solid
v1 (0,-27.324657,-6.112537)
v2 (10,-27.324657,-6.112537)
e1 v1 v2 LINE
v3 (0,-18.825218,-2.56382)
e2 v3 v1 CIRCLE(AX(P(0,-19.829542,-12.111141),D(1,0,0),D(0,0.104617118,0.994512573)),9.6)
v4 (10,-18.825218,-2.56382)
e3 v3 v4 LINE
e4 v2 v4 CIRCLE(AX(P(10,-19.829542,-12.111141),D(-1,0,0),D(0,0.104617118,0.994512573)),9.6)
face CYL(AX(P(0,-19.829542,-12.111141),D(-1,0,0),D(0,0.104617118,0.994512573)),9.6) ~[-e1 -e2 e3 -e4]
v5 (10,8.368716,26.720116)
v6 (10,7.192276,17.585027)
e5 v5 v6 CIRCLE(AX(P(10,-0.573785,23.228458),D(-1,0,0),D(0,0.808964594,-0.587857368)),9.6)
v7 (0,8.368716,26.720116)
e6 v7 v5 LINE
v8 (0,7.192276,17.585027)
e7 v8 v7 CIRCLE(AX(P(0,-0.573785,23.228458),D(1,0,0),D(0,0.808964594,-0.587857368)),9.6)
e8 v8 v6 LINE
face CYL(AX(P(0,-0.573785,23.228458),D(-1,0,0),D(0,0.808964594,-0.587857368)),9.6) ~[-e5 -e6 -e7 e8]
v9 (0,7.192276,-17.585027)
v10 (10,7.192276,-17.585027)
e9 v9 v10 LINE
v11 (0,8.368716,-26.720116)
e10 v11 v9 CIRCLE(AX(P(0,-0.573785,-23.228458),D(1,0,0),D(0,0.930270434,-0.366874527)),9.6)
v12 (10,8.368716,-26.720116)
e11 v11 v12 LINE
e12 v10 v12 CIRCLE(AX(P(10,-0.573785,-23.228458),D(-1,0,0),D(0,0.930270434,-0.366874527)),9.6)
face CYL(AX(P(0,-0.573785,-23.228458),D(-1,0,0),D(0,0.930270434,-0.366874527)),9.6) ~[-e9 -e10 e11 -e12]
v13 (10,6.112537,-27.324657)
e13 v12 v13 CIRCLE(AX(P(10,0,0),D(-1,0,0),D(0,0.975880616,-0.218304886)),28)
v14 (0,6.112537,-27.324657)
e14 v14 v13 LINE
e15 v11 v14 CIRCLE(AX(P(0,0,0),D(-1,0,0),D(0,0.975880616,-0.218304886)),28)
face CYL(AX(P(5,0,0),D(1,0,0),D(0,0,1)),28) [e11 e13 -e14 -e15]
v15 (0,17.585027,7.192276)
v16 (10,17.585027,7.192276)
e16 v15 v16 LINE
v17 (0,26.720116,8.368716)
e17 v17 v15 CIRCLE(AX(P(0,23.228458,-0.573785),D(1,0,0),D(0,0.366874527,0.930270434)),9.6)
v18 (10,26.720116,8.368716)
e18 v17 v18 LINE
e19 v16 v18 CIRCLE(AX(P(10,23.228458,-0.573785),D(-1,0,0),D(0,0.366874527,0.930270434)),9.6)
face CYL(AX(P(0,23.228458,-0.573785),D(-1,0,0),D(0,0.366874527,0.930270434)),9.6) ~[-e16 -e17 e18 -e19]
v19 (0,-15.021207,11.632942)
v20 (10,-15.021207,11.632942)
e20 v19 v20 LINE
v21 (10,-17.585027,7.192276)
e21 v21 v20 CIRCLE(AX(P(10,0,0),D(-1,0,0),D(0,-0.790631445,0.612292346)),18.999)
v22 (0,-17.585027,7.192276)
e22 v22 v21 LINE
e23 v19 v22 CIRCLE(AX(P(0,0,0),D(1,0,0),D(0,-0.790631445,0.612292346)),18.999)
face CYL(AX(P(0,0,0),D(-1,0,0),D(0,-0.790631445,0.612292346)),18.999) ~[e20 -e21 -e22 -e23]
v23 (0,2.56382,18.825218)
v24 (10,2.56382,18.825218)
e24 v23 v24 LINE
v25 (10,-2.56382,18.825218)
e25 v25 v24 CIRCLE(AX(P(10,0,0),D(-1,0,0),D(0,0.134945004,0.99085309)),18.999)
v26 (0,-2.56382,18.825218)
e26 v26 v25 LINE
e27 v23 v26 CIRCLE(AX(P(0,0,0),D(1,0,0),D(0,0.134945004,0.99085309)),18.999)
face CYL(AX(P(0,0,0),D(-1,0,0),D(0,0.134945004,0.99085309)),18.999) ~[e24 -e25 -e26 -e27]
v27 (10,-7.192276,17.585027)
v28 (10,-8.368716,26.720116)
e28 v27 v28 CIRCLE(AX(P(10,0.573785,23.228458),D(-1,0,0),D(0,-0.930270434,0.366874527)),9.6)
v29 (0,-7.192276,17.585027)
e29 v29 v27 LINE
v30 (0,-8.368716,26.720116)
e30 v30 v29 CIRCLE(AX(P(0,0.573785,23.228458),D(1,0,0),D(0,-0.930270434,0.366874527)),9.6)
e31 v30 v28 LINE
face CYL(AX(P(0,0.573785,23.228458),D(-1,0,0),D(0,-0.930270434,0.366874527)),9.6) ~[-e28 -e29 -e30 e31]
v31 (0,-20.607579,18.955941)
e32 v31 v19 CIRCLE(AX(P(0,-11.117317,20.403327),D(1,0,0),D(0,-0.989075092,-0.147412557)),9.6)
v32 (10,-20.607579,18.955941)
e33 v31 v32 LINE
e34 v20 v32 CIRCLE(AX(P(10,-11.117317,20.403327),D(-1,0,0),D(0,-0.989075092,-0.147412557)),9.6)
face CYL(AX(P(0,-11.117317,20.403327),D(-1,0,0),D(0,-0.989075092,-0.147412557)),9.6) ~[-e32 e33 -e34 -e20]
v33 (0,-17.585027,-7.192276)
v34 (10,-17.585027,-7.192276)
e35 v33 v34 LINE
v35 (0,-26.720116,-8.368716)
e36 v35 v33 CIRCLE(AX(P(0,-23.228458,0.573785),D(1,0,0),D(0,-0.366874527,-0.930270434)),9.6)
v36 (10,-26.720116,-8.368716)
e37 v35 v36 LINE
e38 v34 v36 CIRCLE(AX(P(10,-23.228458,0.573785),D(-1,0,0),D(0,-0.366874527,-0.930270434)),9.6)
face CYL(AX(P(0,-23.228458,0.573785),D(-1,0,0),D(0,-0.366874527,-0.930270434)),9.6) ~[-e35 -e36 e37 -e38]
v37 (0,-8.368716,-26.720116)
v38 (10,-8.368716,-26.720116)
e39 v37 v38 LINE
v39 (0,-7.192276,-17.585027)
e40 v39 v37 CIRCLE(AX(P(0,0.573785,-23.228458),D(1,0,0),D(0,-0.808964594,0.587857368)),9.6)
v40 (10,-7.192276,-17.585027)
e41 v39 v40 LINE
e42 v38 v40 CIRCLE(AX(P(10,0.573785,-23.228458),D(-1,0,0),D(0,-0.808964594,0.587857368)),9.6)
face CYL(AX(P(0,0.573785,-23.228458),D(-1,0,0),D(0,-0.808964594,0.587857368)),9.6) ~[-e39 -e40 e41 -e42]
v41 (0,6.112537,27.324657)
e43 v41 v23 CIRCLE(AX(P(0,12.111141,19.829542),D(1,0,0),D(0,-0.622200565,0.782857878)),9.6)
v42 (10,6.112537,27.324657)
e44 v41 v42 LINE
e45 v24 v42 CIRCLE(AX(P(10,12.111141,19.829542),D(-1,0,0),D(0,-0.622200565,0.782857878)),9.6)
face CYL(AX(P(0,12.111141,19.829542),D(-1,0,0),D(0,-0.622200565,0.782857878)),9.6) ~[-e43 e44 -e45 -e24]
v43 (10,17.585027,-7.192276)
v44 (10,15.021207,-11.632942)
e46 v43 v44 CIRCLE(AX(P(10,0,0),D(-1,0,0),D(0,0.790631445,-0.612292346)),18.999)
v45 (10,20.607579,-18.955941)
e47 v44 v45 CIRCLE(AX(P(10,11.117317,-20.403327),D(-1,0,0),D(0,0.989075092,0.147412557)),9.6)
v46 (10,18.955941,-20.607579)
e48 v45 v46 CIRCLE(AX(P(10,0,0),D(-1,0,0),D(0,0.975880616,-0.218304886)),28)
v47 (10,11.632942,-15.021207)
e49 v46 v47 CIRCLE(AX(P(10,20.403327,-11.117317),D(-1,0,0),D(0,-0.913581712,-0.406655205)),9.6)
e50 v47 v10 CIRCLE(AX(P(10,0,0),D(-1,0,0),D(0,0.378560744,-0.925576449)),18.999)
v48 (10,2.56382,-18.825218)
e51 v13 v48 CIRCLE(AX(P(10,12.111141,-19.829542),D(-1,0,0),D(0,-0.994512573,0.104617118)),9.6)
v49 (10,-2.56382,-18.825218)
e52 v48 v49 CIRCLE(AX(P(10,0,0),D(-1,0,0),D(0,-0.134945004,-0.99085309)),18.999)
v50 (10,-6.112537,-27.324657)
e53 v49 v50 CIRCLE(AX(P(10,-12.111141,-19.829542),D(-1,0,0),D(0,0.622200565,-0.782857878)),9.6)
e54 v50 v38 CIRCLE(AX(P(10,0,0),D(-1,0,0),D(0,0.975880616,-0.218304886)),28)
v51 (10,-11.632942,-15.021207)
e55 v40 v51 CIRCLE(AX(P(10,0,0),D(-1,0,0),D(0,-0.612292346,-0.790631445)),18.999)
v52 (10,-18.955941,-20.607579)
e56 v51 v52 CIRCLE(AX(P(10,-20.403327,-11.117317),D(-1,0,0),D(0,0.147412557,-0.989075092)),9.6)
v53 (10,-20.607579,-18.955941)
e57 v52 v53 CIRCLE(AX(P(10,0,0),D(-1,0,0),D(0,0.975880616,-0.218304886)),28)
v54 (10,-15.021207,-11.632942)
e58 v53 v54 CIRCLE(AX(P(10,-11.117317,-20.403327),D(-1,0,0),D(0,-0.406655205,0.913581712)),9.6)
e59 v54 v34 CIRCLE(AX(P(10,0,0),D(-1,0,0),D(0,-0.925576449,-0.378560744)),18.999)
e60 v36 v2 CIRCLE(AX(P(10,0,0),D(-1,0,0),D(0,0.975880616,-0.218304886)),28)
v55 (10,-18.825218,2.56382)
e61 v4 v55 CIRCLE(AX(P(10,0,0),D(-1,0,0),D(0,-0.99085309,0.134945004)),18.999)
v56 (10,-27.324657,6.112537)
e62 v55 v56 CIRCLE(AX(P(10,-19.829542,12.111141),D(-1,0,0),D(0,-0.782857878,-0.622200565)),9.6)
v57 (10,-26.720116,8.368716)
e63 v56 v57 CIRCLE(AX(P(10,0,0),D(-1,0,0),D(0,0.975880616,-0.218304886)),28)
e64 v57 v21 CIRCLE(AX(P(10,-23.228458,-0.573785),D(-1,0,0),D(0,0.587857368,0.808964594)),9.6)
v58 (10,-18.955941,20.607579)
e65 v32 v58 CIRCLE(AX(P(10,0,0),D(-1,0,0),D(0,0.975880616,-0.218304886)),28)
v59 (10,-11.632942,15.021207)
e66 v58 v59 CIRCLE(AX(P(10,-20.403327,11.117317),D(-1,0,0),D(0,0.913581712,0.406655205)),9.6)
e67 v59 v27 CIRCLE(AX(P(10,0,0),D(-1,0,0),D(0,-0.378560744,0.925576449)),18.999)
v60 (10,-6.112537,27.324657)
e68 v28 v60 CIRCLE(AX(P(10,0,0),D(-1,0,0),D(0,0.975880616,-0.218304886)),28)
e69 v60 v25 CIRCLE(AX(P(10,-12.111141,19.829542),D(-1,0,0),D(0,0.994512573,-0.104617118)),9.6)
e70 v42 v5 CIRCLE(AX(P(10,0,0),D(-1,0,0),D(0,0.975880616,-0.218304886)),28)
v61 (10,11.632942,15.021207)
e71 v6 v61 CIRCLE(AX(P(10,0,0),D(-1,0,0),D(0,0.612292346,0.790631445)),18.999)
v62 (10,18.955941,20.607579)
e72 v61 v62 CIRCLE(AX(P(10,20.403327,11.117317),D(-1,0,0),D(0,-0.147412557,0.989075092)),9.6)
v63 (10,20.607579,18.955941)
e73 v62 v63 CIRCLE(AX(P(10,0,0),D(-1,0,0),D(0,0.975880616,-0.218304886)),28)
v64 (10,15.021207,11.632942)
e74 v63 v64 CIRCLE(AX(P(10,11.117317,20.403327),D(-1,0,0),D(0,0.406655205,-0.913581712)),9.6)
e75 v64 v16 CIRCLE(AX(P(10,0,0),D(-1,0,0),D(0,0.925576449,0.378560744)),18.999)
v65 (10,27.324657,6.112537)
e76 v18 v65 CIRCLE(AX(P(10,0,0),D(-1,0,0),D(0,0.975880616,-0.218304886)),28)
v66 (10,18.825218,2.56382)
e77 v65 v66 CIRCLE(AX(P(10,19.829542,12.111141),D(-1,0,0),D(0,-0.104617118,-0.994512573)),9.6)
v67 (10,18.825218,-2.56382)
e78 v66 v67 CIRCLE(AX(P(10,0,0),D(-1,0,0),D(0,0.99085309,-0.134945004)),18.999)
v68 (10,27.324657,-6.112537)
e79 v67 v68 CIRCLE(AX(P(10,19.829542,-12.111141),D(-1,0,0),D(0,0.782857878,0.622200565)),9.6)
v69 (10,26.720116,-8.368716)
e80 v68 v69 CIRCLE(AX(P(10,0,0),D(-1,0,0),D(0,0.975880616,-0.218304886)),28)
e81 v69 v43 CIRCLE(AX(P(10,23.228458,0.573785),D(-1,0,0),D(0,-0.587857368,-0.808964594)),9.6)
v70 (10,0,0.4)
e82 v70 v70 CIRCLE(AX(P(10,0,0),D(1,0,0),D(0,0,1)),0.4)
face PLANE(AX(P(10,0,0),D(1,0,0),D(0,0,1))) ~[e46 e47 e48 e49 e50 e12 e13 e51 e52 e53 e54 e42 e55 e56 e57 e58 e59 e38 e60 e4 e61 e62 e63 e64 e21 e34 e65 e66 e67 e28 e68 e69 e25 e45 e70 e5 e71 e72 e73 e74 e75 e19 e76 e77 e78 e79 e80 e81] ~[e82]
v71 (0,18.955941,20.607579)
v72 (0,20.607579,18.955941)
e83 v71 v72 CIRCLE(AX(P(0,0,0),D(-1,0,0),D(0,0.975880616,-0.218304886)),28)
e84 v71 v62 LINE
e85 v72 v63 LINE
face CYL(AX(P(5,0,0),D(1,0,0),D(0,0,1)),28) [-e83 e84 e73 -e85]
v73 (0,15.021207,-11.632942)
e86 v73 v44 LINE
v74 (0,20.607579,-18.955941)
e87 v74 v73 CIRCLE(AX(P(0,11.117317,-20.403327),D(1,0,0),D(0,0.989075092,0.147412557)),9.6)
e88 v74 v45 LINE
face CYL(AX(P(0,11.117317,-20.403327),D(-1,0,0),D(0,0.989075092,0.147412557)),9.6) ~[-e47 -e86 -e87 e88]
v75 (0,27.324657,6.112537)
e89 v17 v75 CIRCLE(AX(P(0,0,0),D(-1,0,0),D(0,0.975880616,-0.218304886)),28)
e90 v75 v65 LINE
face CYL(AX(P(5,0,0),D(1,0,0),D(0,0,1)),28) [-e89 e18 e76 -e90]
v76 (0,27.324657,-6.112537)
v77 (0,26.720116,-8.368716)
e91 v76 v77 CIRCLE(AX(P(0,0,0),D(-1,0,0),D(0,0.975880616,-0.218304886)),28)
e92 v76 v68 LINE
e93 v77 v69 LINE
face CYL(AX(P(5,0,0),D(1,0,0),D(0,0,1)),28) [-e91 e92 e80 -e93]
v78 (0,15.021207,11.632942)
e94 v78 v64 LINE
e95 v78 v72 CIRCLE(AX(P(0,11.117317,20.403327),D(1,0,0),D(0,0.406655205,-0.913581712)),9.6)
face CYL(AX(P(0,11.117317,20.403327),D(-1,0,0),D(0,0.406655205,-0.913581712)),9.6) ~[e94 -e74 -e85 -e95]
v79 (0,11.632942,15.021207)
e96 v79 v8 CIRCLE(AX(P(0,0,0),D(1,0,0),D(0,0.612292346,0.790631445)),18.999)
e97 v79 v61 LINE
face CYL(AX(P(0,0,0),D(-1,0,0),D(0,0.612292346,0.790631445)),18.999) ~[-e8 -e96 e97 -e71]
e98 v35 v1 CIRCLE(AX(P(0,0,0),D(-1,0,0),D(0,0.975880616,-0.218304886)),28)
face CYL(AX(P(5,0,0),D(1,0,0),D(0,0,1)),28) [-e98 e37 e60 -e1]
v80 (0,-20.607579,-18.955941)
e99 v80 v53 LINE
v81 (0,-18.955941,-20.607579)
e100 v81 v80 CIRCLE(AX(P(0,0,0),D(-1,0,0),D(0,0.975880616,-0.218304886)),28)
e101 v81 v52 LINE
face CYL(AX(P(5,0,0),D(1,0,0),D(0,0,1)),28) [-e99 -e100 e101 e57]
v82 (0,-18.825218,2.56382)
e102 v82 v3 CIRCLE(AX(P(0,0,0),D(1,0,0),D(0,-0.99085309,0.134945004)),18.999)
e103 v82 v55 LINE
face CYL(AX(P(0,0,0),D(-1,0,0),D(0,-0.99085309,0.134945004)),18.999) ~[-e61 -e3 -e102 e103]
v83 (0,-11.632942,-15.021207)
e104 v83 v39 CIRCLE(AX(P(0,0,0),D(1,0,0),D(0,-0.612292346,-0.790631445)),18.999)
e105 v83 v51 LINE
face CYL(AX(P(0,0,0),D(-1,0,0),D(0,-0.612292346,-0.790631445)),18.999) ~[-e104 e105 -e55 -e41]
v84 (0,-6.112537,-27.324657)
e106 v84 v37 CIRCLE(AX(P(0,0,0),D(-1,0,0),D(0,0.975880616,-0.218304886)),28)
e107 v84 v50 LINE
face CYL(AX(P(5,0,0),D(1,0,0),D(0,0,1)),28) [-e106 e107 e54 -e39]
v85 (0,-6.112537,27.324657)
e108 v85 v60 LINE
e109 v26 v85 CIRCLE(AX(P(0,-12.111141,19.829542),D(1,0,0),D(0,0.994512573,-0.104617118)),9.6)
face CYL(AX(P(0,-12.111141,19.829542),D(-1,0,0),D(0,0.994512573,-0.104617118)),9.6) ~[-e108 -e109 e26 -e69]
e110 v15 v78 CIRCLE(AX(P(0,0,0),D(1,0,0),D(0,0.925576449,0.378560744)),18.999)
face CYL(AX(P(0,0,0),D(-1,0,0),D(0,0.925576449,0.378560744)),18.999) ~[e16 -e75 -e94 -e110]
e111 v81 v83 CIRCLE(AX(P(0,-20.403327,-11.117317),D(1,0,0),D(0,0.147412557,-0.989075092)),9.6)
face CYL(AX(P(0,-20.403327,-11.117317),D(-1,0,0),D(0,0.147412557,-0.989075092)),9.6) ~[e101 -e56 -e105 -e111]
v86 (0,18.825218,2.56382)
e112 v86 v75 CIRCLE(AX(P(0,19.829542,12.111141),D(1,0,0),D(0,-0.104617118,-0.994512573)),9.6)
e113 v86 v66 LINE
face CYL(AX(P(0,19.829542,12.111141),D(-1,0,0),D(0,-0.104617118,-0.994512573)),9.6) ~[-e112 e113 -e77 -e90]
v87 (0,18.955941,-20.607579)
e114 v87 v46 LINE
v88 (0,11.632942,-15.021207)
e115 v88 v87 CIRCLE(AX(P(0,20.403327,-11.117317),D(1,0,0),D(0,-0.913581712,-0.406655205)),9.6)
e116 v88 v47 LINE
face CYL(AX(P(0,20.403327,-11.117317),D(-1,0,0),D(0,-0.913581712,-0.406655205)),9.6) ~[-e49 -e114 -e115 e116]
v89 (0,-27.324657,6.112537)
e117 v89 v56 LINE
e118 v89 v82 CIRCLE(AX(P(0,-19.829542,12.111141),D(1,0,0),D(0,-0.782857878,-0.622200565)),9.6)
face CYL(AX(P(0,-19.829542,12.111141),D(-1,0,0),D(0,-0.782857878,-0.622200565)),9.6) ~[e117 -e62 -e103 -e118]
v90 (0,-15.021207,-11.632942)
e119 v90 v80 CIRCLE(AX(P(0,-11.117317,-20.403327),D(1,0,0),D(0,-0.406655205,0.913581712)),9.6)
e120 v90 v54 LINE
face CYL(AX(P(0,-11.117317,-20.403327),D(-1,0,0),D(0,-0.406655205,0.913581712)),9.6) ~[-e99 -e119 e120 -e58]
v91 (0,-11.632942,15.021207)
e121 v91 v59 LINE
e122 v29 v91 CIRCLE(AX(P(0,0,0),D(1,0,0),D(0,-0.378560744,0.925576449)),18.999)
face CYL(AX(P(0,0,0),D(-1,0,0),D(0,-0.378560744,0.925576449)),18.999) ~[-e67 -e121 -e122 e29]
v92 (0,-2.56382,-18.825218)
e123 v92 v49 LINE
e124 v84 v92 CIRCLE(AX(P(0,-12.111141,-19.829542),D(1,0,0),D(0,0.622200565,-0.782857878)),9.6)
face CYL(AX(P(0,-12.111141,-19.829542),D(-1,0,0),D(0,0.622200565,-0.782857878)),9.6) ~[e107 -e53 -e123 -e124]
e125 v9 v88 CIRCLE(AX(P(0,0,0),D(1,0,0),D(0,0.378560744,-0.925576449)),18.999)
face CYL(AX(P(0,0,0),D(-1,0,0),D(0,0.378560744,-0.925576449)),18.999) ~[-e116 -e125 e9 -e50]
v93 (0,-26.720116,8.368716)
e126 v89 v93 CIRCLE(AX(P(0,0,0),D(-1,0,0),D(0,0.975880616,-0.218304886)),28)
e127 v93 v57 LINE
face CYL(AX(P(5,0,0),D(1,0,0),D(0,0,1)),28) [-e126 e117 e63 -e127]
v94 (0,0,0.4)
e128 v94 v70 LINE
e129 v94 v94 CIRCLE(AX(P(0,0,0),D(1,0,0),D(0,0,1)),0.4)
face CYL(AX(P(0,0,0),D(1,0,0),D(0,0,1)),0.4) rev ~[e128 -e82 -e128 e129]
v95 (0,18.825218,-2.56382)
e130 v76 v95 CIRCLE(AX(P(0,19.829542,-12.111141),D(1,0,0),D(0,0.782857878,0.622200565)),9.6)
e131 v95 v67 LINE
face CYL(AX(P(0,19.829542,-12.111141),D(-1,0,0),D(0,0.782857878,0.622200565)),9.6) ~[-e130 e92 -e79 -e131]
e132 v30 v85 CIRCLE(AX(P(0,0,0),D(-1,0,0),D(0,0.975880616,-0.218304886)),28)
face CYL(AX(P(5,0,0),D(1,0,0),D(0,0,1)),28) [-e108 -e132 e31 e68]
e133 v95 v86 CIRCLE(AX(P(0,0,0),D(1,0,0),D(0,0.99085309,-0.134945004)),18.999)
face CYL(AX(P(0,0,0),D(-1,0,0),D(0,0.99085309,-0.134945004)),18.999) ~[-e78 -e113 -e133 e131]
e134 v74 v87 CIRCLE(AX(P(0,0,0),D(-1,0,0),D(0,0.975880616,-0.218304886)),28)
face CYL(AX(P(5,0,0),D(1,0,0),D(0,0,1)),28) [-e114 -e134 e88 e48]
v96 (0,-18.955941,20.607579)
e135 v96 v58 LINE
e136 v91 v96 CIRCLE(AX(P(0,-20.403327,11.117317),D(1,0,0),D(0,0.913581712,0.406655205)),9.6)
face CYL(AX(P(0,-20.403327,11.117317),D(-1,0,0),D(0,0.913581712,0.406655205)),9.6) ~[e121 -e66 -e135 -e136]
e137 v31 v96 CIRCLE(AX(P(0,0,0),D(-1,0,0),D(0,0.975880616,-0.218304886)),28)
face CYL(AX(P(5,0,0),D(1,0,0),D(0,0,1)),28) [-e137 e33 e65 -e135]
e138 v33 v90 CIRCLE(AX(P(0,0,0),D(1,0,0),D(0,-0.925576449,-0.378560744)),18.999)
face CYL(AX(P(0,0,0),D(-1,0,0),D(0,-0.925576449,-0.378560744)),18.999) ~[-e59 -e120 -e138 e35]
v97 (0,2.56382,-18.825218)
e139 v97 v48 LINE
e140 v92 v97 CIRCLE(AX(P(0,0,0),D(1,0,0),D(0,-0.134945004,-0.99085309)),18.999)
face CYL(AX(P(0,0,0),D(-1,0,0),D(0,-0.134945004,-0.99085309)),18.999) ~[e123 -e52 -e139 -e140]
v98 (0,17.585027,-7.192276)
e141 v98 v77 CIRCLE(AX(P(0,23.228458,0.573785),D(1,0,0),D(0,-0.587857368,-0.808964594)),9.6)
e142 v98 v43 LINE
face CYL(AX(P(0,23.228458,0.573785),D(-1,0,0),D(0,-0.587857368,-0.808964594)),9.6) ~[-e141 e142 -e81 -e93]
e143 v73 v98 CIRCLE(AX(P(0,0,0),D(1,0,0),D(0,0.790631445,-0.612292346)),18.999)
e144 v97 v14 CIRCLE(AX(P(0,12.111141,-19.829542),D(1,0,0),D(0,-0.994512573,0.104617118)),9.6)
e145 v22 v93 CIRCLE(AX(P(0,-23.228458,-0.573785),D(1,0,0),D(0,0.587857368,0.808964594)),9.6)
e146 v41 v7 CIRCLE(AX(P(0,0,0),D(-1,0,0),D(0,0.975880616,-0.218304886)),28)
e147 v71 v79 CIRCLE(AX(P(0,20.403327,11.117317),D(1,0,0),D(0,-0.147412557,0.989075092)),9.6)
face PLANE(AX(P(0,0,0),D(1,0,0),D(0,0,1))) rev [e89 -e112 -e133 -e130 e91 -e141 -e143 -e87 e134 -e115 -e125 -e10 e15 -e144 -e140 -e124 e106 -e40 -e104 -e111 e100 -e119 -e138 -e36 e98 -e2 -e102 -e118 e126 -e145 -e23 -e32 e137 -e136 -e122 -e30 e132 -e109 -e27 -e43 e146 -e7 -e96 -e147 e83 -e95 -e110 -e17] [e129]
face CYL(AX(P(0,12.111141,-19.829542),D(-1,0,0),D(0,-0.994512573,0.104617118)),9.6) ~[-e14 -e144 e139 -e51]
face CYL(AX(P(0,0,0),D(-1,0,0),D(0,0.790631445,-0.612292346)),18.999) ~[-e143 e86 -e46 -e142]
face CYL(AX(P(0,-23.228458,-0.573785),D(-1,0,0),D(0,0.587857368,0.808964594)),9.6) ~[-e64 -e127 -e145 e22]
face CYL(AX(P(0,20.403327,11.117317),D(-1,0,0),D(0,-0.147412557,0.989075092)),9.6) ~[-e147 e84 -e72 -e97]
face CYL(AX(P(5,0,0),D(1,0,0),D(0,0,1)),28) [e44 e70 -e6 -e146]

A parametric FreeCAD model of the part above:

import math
import FreeCAD as App
import Part
import Sketcher

doc = App.newDocument("Part")
body = doc.addObject("PartDesign::Body", "Body")

# Sketch on XZ plane
sketch1 = doc.addObject("Sketcher::SketchObject", "Sketch")
body.addObject(sketch1)
sketch1.AttachmentSupport = (doc.XZ_Plane, [""])
sketch1.MapMode = "FlatFace"
sketch1.addGeometry(Part.LineSegment(App.Vector(0, -28, 0), App.Vector(0, 0, 0)), False)
sketch1.addGeometry(Part.LineSegment(App.Vector(0, 0, 0), App.Vector(10, 0, 0)), False)
sketch1.addGeometry(Part.LineSegment(App.Vector(10, 0, 0), App.Vector(10, -28, 0)), False)
sketch1.addGeometry(Part.LineSegment(App.Vector(10, -28, 0), App.Vector(0, -28, 0)), False)
sketch1.addConstraint(Sketcher.Constraint("Coincident", 0, 2, 1, 1))
sketch1.addConstraint(Sketcher.Constraint("Coincident", 1, 2, 2, 1))
sketch1.addConstraint(Sketcher.Constraint("Coincident", 2, 2, 3, 1))
sketch1.addConstraint(Sketcher.Constraint("Coincident", 3, 2, 0, 1))
sketch1.addConstraint(Sketcher.Constraint("Vertical", 0))
sketch1.addConstraint(Sketcher.Constraint("Horizontal", 1))
sketch1.addConstraint(Sketcher.Constraint("Vertical", 2))
sketch1.addConstraint(Sketcher.Constraint("Horizontal", 3))
sketch1.addConstraint(Sketcher.Constraint("Coincident", 0, 2, -1, 1))
sketch1.addConstraint(Sketcher.Constraint("DistanceX", 1, 1, 1, 2, 10.0))
sketch1.addConstraint(Sketcher.Constraint("DistanceY", 0, 1, 0, 2, 28.0))
revolution = doc.addObject("PartDesign::Revolution", "Revolution")
body.addObject(revolution)
revolution.Profile = sketch1
revolution.ReferenceAxis = (sketch1, ["H_Axis"])
revolution.Angle = 360

# Sketch on YZ plane
sketch2 = doc.addObject("Sketcher::SketchObject", "Sketch001")
body.addObject(sketch2)
sketch2.AttachmentSupport = (doc.YZ_Plane, [""])
sketch2.MapMode = "FlatFace"
sketch2.addGeometry(Part.ArcOfCircle(Part.Circle(App.Vector(0, 0, 0), App.Vector(0, 0, 1), 19), math.radians(-7.76), math.radians(7.76)), False)
sketch2.addGeometry(Part.ArcOfCircle(Part.Circle(App.Vector(20, -12, 0), App.Vector(0, 0, 1), 10), math.radians(38), math.radians(96)), False)
sketch2.addGeometry(Part.ArcOfCircle(Part.Circle(App.Vector(0, 0, 0), App.Vector(0, 0, 1), 28), math.radians(-13), math.radians(13)), False)
sketch2.addGeometry(Part.ArcOfCircle(Part.Circle(App.Vector(20, 12, 0), App.Vector(0, 0, 1), 10), math.radians(-96), math.radians(-38)), False)
sketch2.addConstraint(Sketcher.Constraint("Coincident", 0, 1, 1, 2))
sketch2.addConstraint(Sketcher.Constraint("Coincident", 1, 1, 2, 1))
sketch2.addConstraint(Sketcher.Constraint("Coincident", 2, 2, 3, 2))
sketch2.addConstraint(Sketcher.Constraint("Coincident", 3, 1, 0, 2))
sketch2.addConstraint(Sketcher.Constraint("Coincident", 0, 3, -1, 1))
sketch2.addConstraint(Sketcher.Constraint("Coincident", 2, 3, -1, 1))
sketch2.addConstraint(Sketcher.Constraint("Equal", 1, 3))
sketch2.addConstraint(Sketcher.Constraint("Symmetric", 1, 3, 3, 3, -1))
sketch2.addConstraint(Sketcher.Constraint("Radius", 1, 9.6))
sketch2.addConstraint(Sketcher.Constraint("Radius", 0, 18.999))
sketch2.addConstraint(Sketcher.Constraint("Radius", 2, 28.0254))
sketch2.addConstraint(Sketcher.Constraint("DistanceY", 1, 3, -1, 1, 12.111141))
sketch2.addConstraint(Sketcher.Constraint("DistanceY", 0, 1, -1, 1, 2.56382))
pocket1 = doc.addObject("PartDesign::Pocket", "Pocket")
body.addObject(pocket1)
pocket1.Profile = sketch2
pocket1.Type = "ThroughAll"
pocket1.Reversed = True
doc.recompute()

polarpattern = doc.addObject("PartDesign::PolarPattern", "PolarPattern")
body.addObject(polarpattern)
polarpattern.Originals = [pocket1]
polarpattern.Axis = (doc.X_Axis, [""])
polarpattern.Angle = 360
polarpattern.Occurrences = 12
body.Tip = polarpattern

# Sketch on YZ plane
sketch3 = doc.addObject("Sketcher::SketchObject", "Sketch002")
body.addObject(sketch3)
sketch3.AttachmentSupport = (doc.YZ_Plane, [""])
sketch3.MapMode = "FlatFace"
sketch3.addGeometry(Part.Circle(App.Vector(0, 0, 0), App.Vector(0, 0, 1), 0.4), False)
sketch3.addConstraint(Sketcher.Constraint("Coincident", 0, 3, -1, 1))
sketch3.addConstraint(Sketcher.Constraint("Diameter", 0, 0.8))
pocket2 = doc.addObject("PartDesign::Pocket", "Pocket001")
body.addObject(pocket2)
pocket2.Profile = sketch3
pocket2.Length = 100.000102
pocket2.Midplane = True

doc.recompute()
